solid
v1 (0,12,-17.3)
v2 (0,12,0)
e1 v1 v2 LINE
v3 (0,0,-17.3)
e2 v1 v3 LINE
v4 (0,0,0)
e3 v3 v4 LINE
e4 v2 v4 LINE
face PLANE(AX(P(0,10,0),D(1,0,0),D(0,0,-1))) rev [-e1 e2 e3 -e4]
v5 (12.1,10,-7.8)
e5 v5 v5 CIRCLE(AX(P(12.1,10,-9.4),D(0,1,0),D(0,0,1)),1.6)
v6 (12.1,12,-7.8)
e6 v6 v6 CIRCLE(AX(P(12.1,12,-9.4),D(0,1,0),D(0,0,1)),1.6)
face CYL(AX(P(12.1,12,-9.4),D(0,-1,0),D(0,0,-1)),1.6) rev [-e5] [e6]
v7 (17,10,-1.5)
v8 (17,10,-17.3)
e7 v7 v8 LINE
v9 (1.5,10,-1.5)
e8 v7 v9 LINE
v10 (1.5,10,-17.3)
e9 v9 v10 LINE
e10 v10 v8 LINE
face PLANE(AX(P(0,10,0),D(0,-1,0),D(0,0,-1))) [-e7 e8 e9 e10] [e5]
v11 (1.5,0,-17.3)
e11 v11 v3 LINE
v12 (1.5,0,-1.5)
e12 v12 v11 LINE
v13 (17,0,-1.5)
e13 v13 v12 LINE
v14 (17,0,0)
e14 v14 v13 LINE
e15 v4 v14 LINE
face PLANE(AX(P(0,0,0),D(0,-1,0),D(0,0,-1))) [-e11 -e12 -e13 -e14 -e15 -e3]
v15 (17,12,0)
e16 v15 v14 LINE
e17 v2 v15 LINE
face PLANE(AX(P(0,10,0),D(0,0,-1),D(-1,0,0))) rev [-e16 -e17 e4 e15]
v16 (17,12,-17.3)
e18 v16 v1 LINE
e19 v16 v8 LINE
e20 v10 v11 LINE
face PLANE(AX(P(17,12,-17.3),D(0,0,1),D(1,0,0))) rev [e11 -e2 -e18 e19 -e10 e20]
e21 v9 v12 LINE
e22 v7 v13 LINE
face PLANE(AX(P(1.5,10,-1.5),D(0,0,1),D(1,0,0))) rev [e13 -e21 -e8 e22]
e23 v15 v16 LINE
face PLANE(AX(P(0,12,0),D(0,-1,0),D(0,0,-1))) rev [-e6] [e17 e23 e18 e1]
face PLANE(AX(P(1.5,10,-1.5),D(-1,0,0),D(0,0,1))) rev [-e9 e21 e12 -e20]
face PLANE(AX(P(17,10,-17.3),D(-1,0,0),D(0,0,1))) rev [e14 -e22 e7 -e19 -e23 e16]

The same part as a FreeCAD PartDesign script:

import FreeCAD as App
import Part
import Sketcher
from FreeCAD import Vector

doc = App.newDocument("Part")
body = doc.addObject("PartDesign::Body", "Body")

# Sketch on XZ plane
sketch1 = doc.addObject("Sketcher::SketchObject", "Sketch")
body.addObject(sketch1)
sketch1.AttachmentSupport = (doc.XZ_Plane, [""])
sketch1.MapMode = "FlatFace"
sketch1.addGeometry([
    Part.LineSegment(Vector(1.5, -1.5, 0), Vector(1.5, -17.3, 0)),  # 0
    Part.LineSegment(Vector(1.5, -17.3, 0), Vector(17, -17.3, 0)),  # 1
    Part.LineSegment(Vector(17, -17.3, 0), Vector(17, -18.8, 0)),  # 2
    Part.LineSegment(Vector(17, -18.8, 0), Vector(0, -18.8, 0)),  # 3
    Part.LineSegment(Vector(0, -18.8, 0), Vector(0, 0, 0)),  # 4
    Part.LineSegment(Vector(0, 0, 0), Vector(17, 0, 0)),  # 5
    Part.LineSegment(Vector(17, 0, 0), Vector(17, -1.5, 0)),  # 6
    Part.LineSegment(Vector(17, -1.5, 0), Vector(1.5, -1.5, 0)),  # 7
], False)
sketch1.addConstraint([
    Sketcher.Constraint("Coincident", 0, 2, 1, 1),
    Sketcher.Constraint("Coincident", 1, 2, 2, 1),
    Sketcher.Constraint("Coincident", 2, 2, 3, 1),
    Sketcher.Constraint("Coincident", 3, 2, 4, 1),
    Sketcher.Constraint("Coincident", 4, 2, 5, 1),
    Sketcher.Constraint("Coincident", 5, 2, 6, 1),
    Sketcher.Constraint("Coincident", 6, 2, 7, 1),
    Sketcher.Constraint("Coincident", 7, 2, 0, 1),
    Sketcher.Constraint("Vertical", 0),
    Sketcher.Constraint("Horizontal", 1),
    Sketcher.Constraint("Vertical", 2),
    Sketcher.Constraint("Horizontal", 3),
    Sketcher.Constraint("Vertical", 4),
    Sketcher.Constraint("Horizontal", 5),
    Sketcher.Constraint("Vertical", 6),
    Sketcher.Constraint("Horizontal", 7),
    Sketcher.Constraint("Coincident", 4, 2, -1, 1),
    Sketcher.Constraint("Vertical", 2, 2, 5, 2),
    Sketcher.Constraint("Equal", 2, 6),
    Sketcher.Constraint("DistanceX", 3, 2, 3, 1, 17.0),
    Sketcher.Constraint("DistanceX", 1, 1, 1, 2, 15.5),
    Sketcher.Constraint("DistanceY", 0, 2, 0, 1, 15.8),
    Sketcher.Constraint("DistanceY", 2, 2, 2, 1, 1.5),
])
pad1 = doc.addObject("PartDesign::Pad", "Pad")
body.addObject(pad1)
pad1.Profile = sketch1
pad1.Length = 10
pad1.Reversed = True

# Sketch on XZ plane
sketch2 = doc.addObject("Sketcher::SketchObject", "Sketch001")
body.addObject(sketch2)
sketch2.AttachmentSupport = (doc.XZ_Plane, [""])
sketch2.MapMode = "FlatFace"
sketch2.AttachmentOffset = App.Placement(Vector(0, 0, -10), App.Rotation())
sketch2.addGeometry([
    Part.LineSegment(Vector(0, -18.8, 0), Vector(0, 0, 0)),  # 0
    Part.LineSegment(Vector(0, 0, 0), Vector(17, 0, 0)),  # 1
    Part.LineSegment(Vector(17, 0, 0), Vector(17, -18.8, 0)),  # 2
    Part.LineSegment(Vector(17, -18.8, 0), Vector(0, -18.8, 0)),  # 3
    Part.Circle(Vector(12.1, -9.4, 0), Vector(0, 0, 1), 1.6),  # 4
], False)
sketch2.addConstraint([
    Sketcher.Constraint("Coincident", 0, 2, 1, 1),
    Sketcher.Constraint("Coincident", 1, 2, 2, 1),
    Sketcher.Constraint("Coincident", 2, 2, 3, 1),
    Sketcher.Constraint("Coincident", 3, 2, 0, 1),
    Sketcher.Constraint("Vertical", 0),
    Sketcher.Constraint("Horizontal", 1),
    Sketcher.Constraint("Vertical", 2),
    Sketcher.Constraint("Horizontal", 3),
    Sketcher.Constraint("Coincident", 0, 2, -1, 1),
    Sketcher.Constraint("Diameter", 4, 3.2),
    Sketcher.Constraint("DistanceX", 1, 1, 1, 2, 17.0),
    Sketcher.Constraint("DistanceY", 0, 1, 0, 2, 18.8),
    Sketcher.Constraint("DistanceX", -1, 1, 4, 3, 12.1),
    Sketcher.Constraint("DistanceY", 4, 3, -1, 1, 9.4),
])
pad2 = doc.addObject("PartDesign::Pad", "Pad001")
body.addObject(pad2)
pad2.Profile = sketch2
pad2.Length = 2
pad2.Reversed = True

# Sketch on XZ plane
sketch3 = doc.addObject("Sketcher::SketchObject", "Sketch002")
body.addObject(sketch3)
sketch3.AttachmentSupport = (doc.XZ_Plane, [""])
sketch3.MapMode = "FlatFace"
sketch3.addGeometry([
    Part.LineSegment(Vector(0, -17.3, 0), Vector(0, -18.8, 0)),
    Part.LineSegment(Vector(0, -18.8, 0), Vector(17, -18.8, 0)),
    Part.LineSegment(Vector(17, -18.8, 0), Vector(17, -17.3, 0)),
    Part.LineSegment(Vector(17, -17.3, 0), Vector(0, -17.3, 0)),
], False)
sketch3.addConstraint([
    Sketcher.Constraint("Coincident", 0, 2, 1, 1),
    Sketcher.Constraint("Coincident", 1, 2, 2, 1),
    Sketcher.Constraint("Coincident", 2, 2, 3, 1),
    Sketcher.Constraint("Coincident", 3, 2, 0, 1),
    Sketcher.Constraint("Vertical", 0),
    Sketcher.Constraint("Horizontal", 1),
    Sketcher.Constraint("Vertical", 2),
    Sketcher.Constraint("Horizontal", 3),
    Sketcher.Constraint("PointOnObject", 0, 2, -2),
    Sketcher.Constraint("DistanceX", 1, 1, 1, 2, 17.0),
    Sketcher.Constraint("DistanceY", 0, 2, 0, 1, 1.5),
    Sketcher.Constraint("DistanceY", 0, 2, -1, 1, 18.8),
])
pocket1 = doc.addObject("PartDesign::Pocket", "Pocket")
body.addObject(pocket1)
pocket1.Profile = sketch3
pocket1.Type = "ThroughAll"

doc.recompute()
